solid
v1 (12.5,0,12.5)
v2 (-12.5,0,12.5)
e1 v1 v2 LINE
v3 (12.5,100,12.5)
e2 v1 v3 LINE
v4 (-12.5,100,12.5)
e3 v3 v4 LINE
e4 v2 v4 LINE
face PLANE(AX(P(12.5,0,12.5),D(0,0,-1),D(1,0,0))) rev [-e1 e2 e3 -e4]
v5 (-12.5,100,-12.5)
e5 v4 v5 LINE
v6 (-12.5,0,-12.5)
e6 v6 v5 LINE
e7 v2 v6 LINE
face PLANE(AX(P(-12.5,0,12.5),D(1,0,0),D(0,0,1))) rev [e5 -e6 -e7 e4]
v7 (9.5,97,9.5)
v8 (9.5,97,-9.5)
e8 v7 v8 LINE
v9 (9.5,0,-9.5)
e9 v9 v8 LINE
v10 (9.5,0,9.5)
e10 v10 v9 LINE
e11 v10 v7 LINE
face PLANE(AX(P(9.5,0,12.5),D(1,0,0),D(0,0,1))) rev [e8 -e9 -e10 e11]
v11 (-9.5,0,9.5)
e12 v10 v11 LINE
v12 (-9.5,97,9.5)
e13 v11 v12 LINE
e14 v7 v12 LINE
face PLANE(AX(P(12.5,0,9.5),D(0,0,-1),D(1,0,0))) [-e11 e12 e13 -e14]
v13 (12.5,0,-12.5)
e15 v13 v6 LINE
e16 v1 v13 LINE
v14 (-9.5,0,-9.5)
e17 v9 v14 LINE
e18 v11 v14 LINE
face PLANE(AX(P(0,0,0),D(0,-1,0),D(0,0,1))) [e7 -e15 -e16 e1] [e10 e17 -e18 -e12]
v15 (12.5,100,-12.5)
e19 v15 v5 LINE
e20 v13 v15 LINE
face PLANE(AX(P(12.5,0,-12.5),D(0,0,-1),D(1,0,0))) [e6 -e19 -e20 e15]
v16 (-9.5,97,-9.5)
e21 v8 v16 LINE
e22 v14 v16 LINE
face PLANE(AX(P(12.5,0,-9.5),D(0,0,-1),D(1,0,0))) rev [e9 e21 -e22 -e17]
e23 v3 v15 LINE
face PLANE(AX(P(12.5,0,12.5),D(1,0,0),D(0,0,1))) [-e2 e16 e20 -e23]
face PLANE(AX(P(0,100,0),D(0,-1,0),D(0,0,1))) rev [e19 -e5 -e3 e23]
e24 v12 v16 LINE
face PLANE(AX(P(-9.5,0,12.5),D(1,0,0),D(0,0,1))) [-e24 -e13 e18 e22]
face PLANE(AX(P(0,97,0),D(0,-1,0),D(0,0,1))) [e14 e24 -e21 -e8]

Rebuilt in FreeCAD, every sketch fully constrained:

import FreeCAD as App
import Part
import Sketcher


def faces_at(feature, points):
    """Names of the faces that lie closest to the given points."""
    faces = feature.Shape.Faces
    near = lambda p: min(range(len(faces)), key=lambda i: faces[i].distToShape(Part.Vertex(*p))[0])
    return sorted({f"Face{near(p) + 1}" for p in points})

doc = App.newDocument("Part")
body = doc.addObject("PartDesign::Body", "Body")

# Sketch on XZ plane
sketch1 = body.newObject("Sketcher::SketchObject", "Sketch")
sketch1.AttachmentSupport = (doc.getObject("XZ_Plane"), [""])
sketch1.MapMode = "FlatFace"
sketch1.addGeometry([
    Part.LineSegment(App.Vector(-12, -12, 0), App.Vector(-12, 12, 0)),
    Part.LineSegment(App.Vector(-12, 12, 0), App.Vector(12, 12, 0)),
    Part.LineSegment(App.Vector(12, 12, 0), App.Vector(12, -12, 0)),
    Part.LineSegment(App.Vector(12, -12, 0), App.Vector(-12, -12, 0)),
], False)
sketch1.addConstraint([
    Sketcher.Constraint("Coincident", 0, 2, 1, 1),
    Sketcher.Constraint("Coincident", 1, 2, 2, 1),
    Sketcher.Constraint("Coincident", 2, 2, 3, 1),
    Sketcher.Constraint("Coincident", 3, 2, 0, 1),
    Sketcher.Constraint("Vertical", 0),
    Sketcher.Constraint("Horizontal", 1),
    Sketcher.Constraint("Vertical", 2),
    Sketcher.Constraint("Horizontal", 3),
    Sketcher.Constraint("Symmetric", 0, 2, 2, 2, -1, 1),
    Sketcher.Constraint("Equal", 3, 0),
    Sketcher.Constraint("DistanceX", 1, 1, 1, 2, 25.0),
])
pad1 = body.newObject("PartDesign::Pad", "Pad")
pad1.Profile = sketch1
pad1.Length = 100
pad1.Reversed = True
doc.recompute()

thickness = body.newObject("PartDesign::Thickness", "Thickness")
thickness.Base = (pad1, faces_at(pad1, [(0, 100, 0)]))
thickness.Value = 3
thickness.Reversed = True
thickness.Join = "Intersection"
body2 = doc.addObject("PartDesign::Body", "Body001")
doc.recompute()

body.Placement = App.Placement(App.Vector(0, 100, 0), App.Rotation(App.Vector(0, 0, 1), 180))
boolean = body2.newObject("PartDesign::Boolean", "Boolean")
boolean.Type = "Fuse"
boolean.addObjects([body])

doc.recompute()
